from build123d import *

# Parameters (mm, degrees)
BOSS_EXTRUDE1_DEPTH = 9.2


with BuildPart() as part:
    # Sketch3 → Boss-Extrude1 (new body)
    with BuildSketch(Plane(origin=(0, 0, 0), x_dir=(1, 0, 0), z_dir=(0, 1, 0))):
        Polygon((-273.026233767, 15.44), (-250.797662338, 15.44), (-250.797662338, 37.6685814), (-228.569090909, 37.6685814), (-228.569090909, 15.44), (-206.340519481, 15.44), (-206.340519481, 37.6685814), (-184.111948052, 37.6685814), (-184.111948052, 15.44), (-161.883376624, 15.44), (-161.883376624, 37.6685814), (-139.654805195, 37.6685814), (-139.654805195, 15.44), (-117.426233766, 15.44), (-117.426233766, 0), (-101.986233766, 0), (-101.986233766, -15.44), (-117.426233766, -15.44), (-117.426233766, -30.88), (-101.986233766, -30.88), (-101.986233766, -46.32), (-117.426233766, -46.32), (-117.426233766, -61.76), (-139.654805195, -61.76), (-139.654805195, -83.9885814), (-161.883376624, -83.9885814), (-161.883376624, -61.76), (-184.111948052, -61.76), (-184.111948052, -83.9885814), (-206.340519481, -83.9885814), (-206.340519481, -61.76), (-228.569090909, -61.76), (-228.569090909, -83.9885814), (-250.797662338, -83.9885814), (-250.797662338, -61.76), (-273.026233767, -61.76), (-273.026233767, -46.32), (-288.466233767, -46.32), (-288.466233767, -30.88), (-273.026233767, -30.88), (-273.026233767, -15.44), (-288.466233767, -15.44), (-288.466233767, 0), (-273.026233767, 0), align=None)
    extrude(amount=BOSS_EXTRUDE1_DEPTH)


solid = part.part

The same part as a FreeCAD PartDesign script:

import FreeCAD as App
import Part
import Sketcher
from FreeCAD import Vector
Q = App.Units.Quantity


def add_polygon(sketch, points):
    """Adds a closed chain of lines whose ends are joined by coincident constraints."""
    first, n = sketch.GeometryCount, len(points)
    for a, b in zip(points, points[1:] + points[:1]):
        sketch.addGeometry(Part.LineSegment(App.Vector(*a, 0), App.Vector(*b, 0)), False)
    for i in range(n):
        sketch.addConstraint(Sketcher.Constraint("Coincident", first + i, 2, first + (i + 1) % n, 1))

doc = App.newDocument("Part")
params = doc.addObject("Spreadsheet::Sheet", "Params")
for row, (alias, value) in enumerate([
    ("sketch1_width", "15.44 mm"),
    ("pad1_length", "9.2 mm"),
], start=1):
    params.set(f"A{row}", alias)
    params.set(f"B{row}", "=" + value)
    params.setAlias(f"B{row}", alias)

body = doc.addObject("PartDesign::Body", "Body")

# Sketch on XZ plane
sketch1 = doc.addObject("Sketcher::SketchObject", "Sketch")
body.addObject(sketch1)
sketch1.AttachmentSupport = (doc.XZ_Plane, [""])
sketch1.MapMode = "FlatFace"
add_polygon(sketch1, [(-251, -15), (-273, -15), (-273, 0), (-288, 0), (-288, 15), (-273, 15), (-273, 31), (-288, 31), (-288, 46), (-273, 46), (-273, 62), (-251, 62), (-251, 84), (-229, 84), (-229, 62), (-206, 62), (-206, 84), (-184, 84), (-184, 62), (-162, 62), (-162, 84), (-140, 84), (-140, 62), (-117, 62), (-117, 46), (-102, 46), (-102, 31), (-117, 31), (-117, 15), (-102, 15), (-102, 0), (-117, 0), (-117, -15), (-140, -15), (-140, -38), (-162, -38), (-162, -15), (-184, -15), (-184, -38), (-206, -38), (-206, -15), (-229, -15), (-229, -38), (-251, -38)])  # lines 0-43
sketch1.addConstraint(Sketcher.Constraint("Horizontal", 0))
sketch1.addConstraint(Sketcher.Constraint("Vertical", 1))
sketch1.addConstraint(Sketcher.Constraint("Horizontal", 2))
sketch1.addConstraint(Sketcher.Constraint("Vertical", 3))
sketch1.addConstraint(Sketcher.Constraint("Horizontal", 4))
sketch1.addConstraint(Sketcher.Constraint("Vertical", 5))
sketch1.addConstraint(Sketcher.Constraint("Horizontal", 6))
sketch1.addConstraint(Sketcher.Constraint("Vertical", 7))
sketch1.addConstraint(Sketcher.Constraint("Horizontal", 8))
sketch1.addConstraint(Sketcher.Constraint("Vertical", 9))
sketch1.addConstraint(Sketcher.Constraint("Horizontal", 10))
sketch1.addConstraint(Sketcher.Constraint("Vertical", 11))
sketch1.addConstraint(Sketcher.Constraint("Horizontal", 12))
sketch1.addConstraint(Sketcher.Constraint("Vertical", 13))
sketch1.addConstraint(Sketcher.Constraint("Horizontal", 14))
sketch1.addConstraint(Sketcher.Constraint("Vertical", 15))
sketch1.addConstraint(Sketcher.Constraint("Horizontal", 16))
sketch1.addConstraint(Sketcher.Constraint("Vertical", 17))
sketch1.addConstraint(Sketcher.Constraint("Horizontal", 18))
sketch1.addConstraint(Sketcher.Constraint("Vertical", 19))
sketch1.addConstraint(Sketcher.Constraint("Horizontal", 20))
sketch1.addConstraint(Sketcher.Constraint("Vertical", 21))
sketch1.addConstraint(Sketcher.Constraint("Horizontal", 22))
sketch1.addConstraint(Sketcher.Constraint("Vertical", 23))
sketch1.addConstraint(Sketcher.Constraint("Horizontal", 24))
sketch1.addConstraint(Sketcher.Constraint("Vertical", 25))
sketch1.addConstraint(Sketcher.Constraint("Horizontal", 26))
sketch1.addConstraint(Sketcher.Constraint("Vertical", 27))
sketch1.addConstraint(Sketcher.Constraint("Horizontal", 28))
sketch1.addConstraint(Sketcher.Constraint("Vertical", 29))
sketch1.addConstraint(Sketcher.Constraint("Horizontal", 30))
sketch1.addConstraint(Sketcher.Constraint("Vertical", 31))
sketch1.addConstraint(Sketcher.Constraint("Horizontal", 32))
sketch1.addConstraint(Sketcher.Constraint("Vertical", 33))
sketch1.addConstraint(Sketcher.Constraint("Horizontal", 34))
sketch1.addConstraint(Sketcher.Constraint("Vertical", 35))
sketch1.addConstraint(Sketcher.Constraint("Horizontal", 36))
sketch1.addConstraint(Sketcher.Constraint("Vertical", 37))
sketch1.addConstraint(Sketcher.Constraint("Horizontal", 38))
sketch1.addConstraint(Sketcher.Constraint("Vertical", 39))
sketch1.addConstraint(Sketcher.Constraint("Horizontal", 40))
sketch1.addConstraint(Sketcher.Constraint("Vertical", 41))
sketch1.addConstraint(Sketcher.Constraint("Horizontal", 42))
sketch1.addConstraint(Sketcher.Constraint("Vertical", 43))
sketch1.addConstraint(Sketcher.Constraint("Symmetric", 0, 2, 4, 2, -1))
sketch1.addConstraint(Sketcher.Constraint("Symmetric", 27, 2, 31, 2, -1))
sketch1.addConstraint(Sketcher.Constraint("PointOnObject", 1, 2, -1))
sketch1.addConstraint(Sketcher.Constraint("PointOnObject", 29, 2, -1))
sketch1.addConstraint(Sketcher.Constraint("Horizontal", 10, 2, 13, 2))
sketch1.addConstraint(Sketcher.Constraint("Horizontal", 12, 2, 15, 2))
sketch1.addConstraint(Sketcher.Constraint("Horizontal", 14, 2, 17, 2))
sketch1.addConstraint(Sketcher.Constraint("Horizontal", 16, 2, 19, 2))
sketch1.addConstraint(Sketcher.Constraint("Horizontal", 18, 2, 21, 2))
sketch1.addConstraint(Sketcher.Constraint("Horizontal", 8, 2, 23, 2))
sketch1.addConstraint(Sketcher.Constraint("Horizontal", 6, 2, 25, 2))
sketch1.addConstraint(Sketcher.Constraint("Horizontal", 4, 2, 27, 2))
sketch1.addConstraint(Sketcher.Constraint("Horizontal", 32, 2, 35, 2))
sketch1.addConstraint(Sketcher.Constraint("Horizontal", 34, 2, 37, 2))
sketch1.addConstraint(Sketcher.Constraint("Horizontal", 36, 2, 39, 2))
sketch1.addConstraint(Sketcher.Constraint("Horizontal", 38, 2, 41, 2))
sketch1.addConstraint(Sketcher.Constraint("Vertical", 3, 2, 6, 2))
sketch1.addConstraint(Sketcher.Constraint("Vertical", 5, 2, 8, 2))
sketch1.addConstraint(Sketcher.Constraint("Vertical", 23, 2, 26, 2))
sketch1.addConstraint(Sketcher.Constraint("Vertical", 25, 2, 28, 2))
sketch1.addConstraint(Sketcher.Constraint("Vertical", 21, 2, 32, 2))
sketch1.addConstraint(Sketcher.Constraint("Vertical", 19, 2, 34, 2))
sketch1.addConstraint(Sketcher.Constraint("Vertical", 17, 2, 36, 2))
sketch1.addConstraint(Sketcher.Constraint("Vertical", 15, 2, 38, 2))
sketch1.addConstraint(Sketcher.Constraint("Vertical", 13, 2, 40, 2))
sketch1.addConstraint(Sketcher.Constraint("Vertical", 11, 2, 42, 2))
sketch1.addConstraint(Sketcher.Constraint("Equal", 10, 12))
sketch1.addConstraint(Sketcher.Constraint("Equal", 12, 14))
sketch1.addConstraint(Sketcher.Constraint("Equal", 14, 16))
sketch1.addConstraint(Sketcher.Constraint("Equal", 16, 18))
sketch1.addConstraint(Sketcher.Constraint("Equal", 18, 20))
sketch1.addConstraint(Sketcher.Constraint("Equal", 20, 22))
sketch1.addConstraint(Sketcher.Constraint("Equal", 8, 24))
sketch1.addConstraint(Sketcher.Constraint("Equal", 30, 1))
sketch1.addConstraint(Sketcher.Constraint("Equal", 3, 5))
sketch1.addConstraint(Sketcher.Constraint("Equal", 5, 7))
sketch1.addConstraint(Sketcher.Constraint("Equal", 7, 9))
sketch1.addConstraint(Sketcher.Constraint("Equal", 21, 33))
sketch1.addConstraint(Sketcher.Constraint("DistanceX", 2, 2, 2, 1, Q("15.44 mm")))
sketch1.addConstraint(Sketcher.Constraint("DistanceX", 0, 2, 0, 1, Q("22.228571 mm")))
sketch1.addConstraint(Sketcher.Constraint("DistanceY", 11, 1, 11, 2, Q("22.228581 mm")))
sketch1.addConstraint(Sketcher.Constraint("DistanceX", 12, 2, -1, 1, Q("228.569091 mm")))
sketch1.setExpression("Constraints[126]", "Params.sketch1_width")
pad1 = doc.addObject("PartDesign::Pad", "Pad")
body.addObject(pad1)
pad1.Profile = sketch1
pad1.setExpression("Length", "Params.pad1_length")
pad1.Reversed = True

doc.recompute()
